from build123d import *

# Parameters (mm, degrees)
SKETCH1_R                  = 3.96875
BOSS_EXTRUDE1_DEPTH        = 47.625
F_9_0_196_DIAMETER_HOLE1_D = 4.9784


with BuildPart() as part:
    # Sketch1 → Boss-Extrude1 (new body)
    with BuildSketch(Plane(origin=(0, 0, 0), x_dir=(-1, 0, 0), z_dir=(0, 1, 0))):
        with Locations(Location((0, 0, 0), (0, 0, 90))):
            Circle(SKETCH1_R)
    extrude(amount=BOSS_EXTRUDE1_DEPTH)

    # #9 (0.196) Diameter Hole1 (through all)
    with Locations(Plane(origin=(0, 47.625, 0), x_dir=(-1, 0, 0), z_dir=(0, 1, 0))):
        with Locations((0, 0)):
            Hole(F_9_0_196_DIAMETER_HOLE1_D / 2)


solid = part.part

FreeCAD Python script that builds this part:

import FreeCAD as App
import Part
import Sketcher
Q = App.Units.Quantity

doc = App.newDocument("Part")
body = doc.addObject("PartDesign::Body", "Body")

sketch1 = body.newObject("Sketcher::SketchObject", "Sketch")
sketch1.AttachmentSupport = (doc.getObject("XZ_Plane"), [""])
sketch1.MapMode = "FlatFace"
sketch1.addGeometry(Part.Circle(App.Vector(0, 0, 0), App.Vector(0, 0, 1), 4), False)
sketch1.addConstraint(Sketcher.Constraint("Coincident", 0, 3, -1, 1))
sketch1.addConstraint(Sketcher.Constraint("Diameter", 0, Q("0.3125 in")))
pad1 = body.newObject("PartDesign::Pad", "Pad")
pad1.Profile = sketch1
pad1.Length = Q("1.875 in")
pad1.Reversed = True

sketch2 = body.newObject("Sketcher::SketchObject", "Sketch001")
sketch2.AttachmentSupport = (doc.getObject("XZ_Plane"), [""])
sketch2.MapMode = "FlatFace"
sketch2.AttachmentOffset = App.Placement(App.Vector(0, 0, -1.875 * 25.4), App.Rotation())
sketch2.addGeometry(Part.Circle(App.Vector(0, 0, 0), App.Vector(0, 0, 1), 2.5), False)
sketch2.addConstraint(Sketcher.Constraint("Coincident", 0, 3, -1, 1))
sketch2.addConstraint(Sketcher.Constraint("Diameter", 0, Q("0.196 in")))
doc.recompute()
hole = body.newObject("PartDesign::Hole", "Hole")
hole.Profile = sketch2
hole.ThreadType = "None"
hole.Diameter = Q("0.196 in")
hole.DepthType = "ThroughAll"
hole.Reversed = True

doc.recompute()
